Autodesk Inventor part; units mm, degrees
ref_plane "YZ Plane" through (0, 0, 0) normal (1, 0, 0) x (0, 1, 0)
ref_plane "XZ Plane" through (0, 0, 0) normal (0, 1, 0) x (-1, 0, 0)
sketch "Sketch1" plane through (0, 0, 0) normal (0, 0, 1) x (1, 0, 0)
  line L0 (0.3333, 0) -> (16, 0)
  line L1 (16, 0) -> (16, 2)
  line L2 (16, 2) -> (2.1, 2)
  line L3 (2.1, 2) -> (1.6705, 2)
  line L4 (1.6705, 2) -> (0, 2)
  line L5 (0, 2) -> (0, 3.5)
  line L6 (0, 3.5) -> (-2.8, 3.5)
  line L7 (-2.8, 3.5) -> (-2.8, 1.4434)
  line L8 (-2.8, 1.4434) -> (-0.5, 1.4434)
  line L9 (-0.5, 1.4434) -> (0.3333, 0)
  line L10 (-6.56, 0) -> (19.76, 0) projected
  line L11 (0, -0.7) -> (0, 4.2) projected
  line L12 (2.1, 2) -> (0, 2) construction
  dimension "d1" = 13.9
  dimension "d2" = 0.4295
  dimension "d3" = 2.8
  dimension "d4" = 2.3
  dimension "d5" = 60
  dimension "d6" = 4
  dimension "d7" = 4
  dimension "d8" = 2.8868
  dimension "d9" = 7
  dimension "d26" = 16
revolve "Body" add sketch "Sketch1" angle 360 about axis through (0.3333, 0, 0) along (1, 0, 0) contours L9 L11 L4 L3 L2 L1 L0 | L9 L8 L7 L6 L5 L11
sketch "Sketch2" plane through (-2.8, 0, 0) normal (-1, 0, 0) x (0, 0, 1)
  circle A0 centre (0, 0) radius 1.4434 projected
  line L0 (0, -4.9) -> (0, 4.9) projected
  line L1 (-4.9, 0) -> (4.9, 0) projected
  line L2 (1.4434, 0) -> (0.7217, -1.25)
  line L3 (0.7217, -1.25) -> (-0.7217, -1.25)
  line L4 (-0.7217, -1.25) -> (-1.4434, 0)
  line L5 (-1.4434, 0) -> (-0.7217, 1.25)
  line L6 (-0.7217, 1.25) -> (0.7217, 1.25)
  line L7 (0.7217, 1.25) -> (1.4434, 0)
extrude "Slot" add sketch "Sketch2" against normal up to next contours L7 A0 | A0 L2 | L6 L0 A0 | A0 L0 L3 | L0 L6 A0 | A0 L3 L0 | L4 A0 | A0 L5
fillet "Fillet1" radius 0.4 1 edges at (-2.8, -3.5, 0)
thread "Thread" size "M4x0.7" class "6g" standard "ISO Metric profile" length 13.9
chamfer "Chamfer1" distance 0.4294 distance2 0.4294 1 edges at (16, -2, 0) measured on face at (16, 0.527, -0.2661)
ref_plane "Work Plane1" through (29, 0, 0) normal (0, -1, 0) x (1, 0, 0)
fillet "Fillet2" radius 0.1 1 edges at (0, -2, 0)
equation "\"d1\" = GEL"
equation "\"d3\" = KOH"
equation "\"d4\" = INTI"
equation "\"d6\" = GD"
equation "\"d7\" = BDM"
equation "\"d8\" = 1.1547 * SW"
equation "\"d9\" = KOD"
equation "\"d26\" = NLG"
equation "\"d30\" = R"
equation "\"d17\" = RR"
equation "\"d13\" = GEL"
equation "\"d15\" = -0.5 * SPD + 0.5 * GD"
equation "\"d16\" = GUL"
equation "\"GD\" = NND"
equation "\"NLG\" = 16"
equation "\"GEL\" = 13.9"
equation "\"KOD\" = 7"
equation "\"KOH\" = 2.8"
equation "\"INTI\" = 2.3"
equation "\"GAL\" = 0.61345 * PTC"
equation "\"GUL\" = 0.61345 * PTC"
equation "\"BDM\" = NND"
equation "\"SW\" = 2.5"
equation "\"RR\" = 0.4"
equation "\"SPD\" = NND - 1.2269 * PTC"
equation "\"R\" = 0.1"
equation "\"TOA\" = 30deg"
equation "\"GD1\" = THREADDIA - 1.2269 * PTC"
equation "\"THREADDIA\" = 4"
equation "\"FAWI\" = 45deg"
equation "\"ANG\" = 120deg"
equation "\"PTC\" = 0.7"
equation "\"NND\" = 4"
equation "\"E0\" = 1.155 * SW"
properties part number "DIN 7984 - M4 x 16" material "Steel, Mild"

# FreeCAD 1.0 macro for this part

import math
import FreeCAD as App
import Part
import Sketcher
from FreeCAD import Vector
Q = App.Units.Quantity


def edges_at(feature, points):
    """Names of the edges that pass closest to the given points."""
    edges = feature.Shape.Edges
    near = lambda p: min(range(len(edges)), key=lambda i: edges[i].distToShape(Part.Vertex(*p))[0])
    return sorted({f"Edge{near(p) + 1}" for p in points})

doc = App.newDocument("Part")
body = doc.addObject("PartDesign::Body", "Body")

# Sketch on XY plane
sketch1 = body.newObject("Sketcher::SketchObject", "Sketch")
sketch1.AttachmentSupport = (doc.getObject("XY_Plane"), [""])
sketch1.MapMode = "FlatFace"
sketch1.addGeometry(Part.LineSegment(Vector(0.3, 0, 0), Vector(16, 0, 0)), False)
sketch1.addGeometry(Part.LineSegment(Vector(16, 0, 0), Vector(16, 2, 0)), False)
sketch1.addGeometry(Part.LineSegment(Vector(16, 2, 0), Vector(0, 2, 0)), False)
sketch1.addGeometry(Part.LineSegment(Vector(0, 2, 0), Vector(0, 3.5, 0)), False)
sketch1.addGeometry(Part.LineSegment(Vector(0, 3.5, 0), Vector(-2.8, 3.5, 0)), False)
sketch1.addGeometry(Part.LineSegment(Vector(-2.8, 3.5, 0), Vector(-2.8, 1.4, 0)), False)
sketch1.addGeometry(Part.LineSegment(Vector(-2.8, 1.4, 0), Vector(-0.5, 1.4, 0)), False)
sketch1.addGeometry(Part.LineSegment(Vector(-0.5, 1.4, 0), Vector(0.3, 0, 0)), False)
sketch1.addConstraint(Sketcher.Constraint("Coincident", 0, 2, 1, 1))
sketch1.addConstraint(Sketcher.Constraint("Coincident", 1, 2, 2, 1))
sketch1.addConstraint(Sketcher.Constraint("Coincident", 2, 2, 3, 1))
sketch1.addConstraint(Sketcher.Constraint("Coincident", 3, 2, 4, 1))
sketch1.addConstraint(Sketcher.Constraint("Coincident", 4, 2, 5, 1))
sketch1.addConstraint(Sketcher.Constraint("Coincident", 5, 2, 6, 1))
sketch1.addConstraint(Sketcher.Constraint("Coincident", 6, 2, 7, 1))
sketch1.addConstraint(Sketcher.Constraint("Coincident", 7, 2, 0, 1))
sketch1.addConstraint(Sketcher.Constraint("Horizontal", 0))
sketch1.addConstraint(Sketcher.Constraint("Vertical", 1))
sketch1.addConstraint(Sketcher.Constraint("Horizontal", 2))
sketch1.addConstraint(Sketcher.Constraint("Vertical", 3))
sketch1.addConstraint(Sketcher.Constraint("Horizontal", 4))
sketch1.addConstraint(Sketcher.Constraint("Vertical", 5))
sketch1.addConstraint(Sketcher.Constraint("Horizontal", 6))
sketch1.addConstraint(Sketcher.Constraint("PointOnObject", 0, 2, -1))
sketch1.addConstraint(Sketcher.Constraint("PointOnObject", 2, 2, -2))
sketch1.addConstraint(Sketcher.Constraint("DistanceX", 2, 2, 2, 1, 16.0))
sketch1.addConstraint(Sketcher.Constraint("DistanceX", 4, 2, 4, 1, 2.8))
sketch1.addConstraint(Sketcher.Constraint("DistanceX", 6, 1, 6, 2, 2.3))
sketch1.addConstraint(Sketcher.Constraint("DistanceY", 1, 1, 1, 2, 2.0))
sketch1.addConstraint(Sketcher.Constraint("DistanceY", 3, 1, 3, 2, 1.5))
sketch1.addConstraint(Sketcher.Constraint("DistanceX", 0, 1, 0, 2, 15.6667))
sketch1.addConstraint(Sketcher.Constraint("DistanceY", 5, 2, 5, 1, 2.0566))
revolution = body.newObject("PartDesign::Revolution", "Revolution")
revolution.Profile = sketch1
revolution.ReferenceAxis = (sketch1, ["H_Axis"])
revolution.Angle = 360

# Sketch on YZ plane
sketch2 = body.newObject("Sketcher::SketchObject", "Sketch001")
sketch2.AttachmentSupport = (doc.getObject("YZ_Plane"), [""])
sketch2.MapMode = "FlatFace"
sketch2.AttachmentOffset = App.Placement(Vector(0, 0, -2.8), App.Rotation())
sketch2.addGeometry(Part.LineSegment(Vector(1.2, 0.7, 0), Vector(0, 1.4, 0)), False)
sketch2.addGeometry(Part.ArcOfCircle(Part.Circle(Vector(0, 0, 0), Vector(0, 0, 1), 1.4), math.radians(30), math.radians(90)), False)
sketch2.addGeometry(Part.ArcOfCircle(Part.Circle(Vector(0, 0, 0), Vector(0, 0, 1), 1.4), math.radians(90), math.radians(150)), False)
sketch2.addGeometry(Part.LineSegment(Vector(0, 1.4, 0), Vector(-1.2, 0.7, 0)), False)
sketch2.addGeometry(Part.ArcOfCircle(Part.Circle(Vector(0, 0, 0), Vector(0, 0, 1), 1.4), math.radians(-30), math.radians(30)), False)
sketch2.addGeometry(Part.LineSegment(Vector(1.2, 0.7, 0), Vector(1.2, -0.7, 0)), False)
sketch2.addGeometry(Part.LineSegment(Vector(-1.2, 0.7, 0), Vector(-1.2, -0.7, 0)), False)
sketch2.addGeometry(Part.ArcOfCircle(Part.Circle(Vector(0, 0, 0), Vector(0, 0, 1), 1.4), math.radians(150), math.radians(210)), False)
sketch2.addGeometry(Part.LineSegment(Vector(-1.2, -0.7, 0), Vector(0, -1.4, 0)), False)
sketch2.addGeometry(Part.ArcOfCircle(Part.Circle(Vector(0, 0, 0), Vector(0, 0, 1), 1.4), math.radians(-150), math.radians(-90)), False)
sketch2.addGeometry(Part.ArcOfCircle(Part.Circle(Vector(0, 0, 0), Vector(0, 0, 1), 1.4), math.radians(-90), math.radians(-30)), False)
sketch2.addGeometry(Part.LineSegment(Vector(0, -1.4, 0), Vector(1.2, -0.7, 0)), False)
sketch2.addConstraint(Sketcher.Constraint("Coincident", 0, 1, 1, 1))
sketch2.addConstraint(Sketcher.Constraint("Coincident", 1, 2, 0, 2))
sketch2.addConstraint(Sketcher.Constraint("Coincident", 2, 1, 3, 1))
sketch2.addConstraint(Sketcher.Constraint("Coincident", 3, 2, 2, 2))
sketch2.addConstraint(Sketcher.Constraint("Coincident", 4, 1, 5, 2))
sketch2.addConstraint(Sketcher.Constraint("Coincident", 5, 1, 4, 2))
sketch2.addConstraint(Sketcher.Constraint("Coincident", 6, 1, 7, 1))
sketch2.addConstraint(Sketcher.Constraint("Coincident", 7, 2, 6, 2))
sketch2.addConstraint(Sketcher.Constraint("Coincident", 8, 1, 9, 1))
sketch2.addConstraint(Sketcher.Constraint("Coincident", 9, 2, 8, 2))
sketch2.addConstraint(Sketcher.Constraint("Coincident", 10, 1, 11, 1))
sketch2.addConstraint(Sketcher.Constraint("Coincident", 11, 2, 10, 2))
sketch2.addConstraint(Sketcher.Constraint("Vertical", 5))
sketch2.addConstraint(Sketcher.Constraint("Vertical", 6))
sketch2.addConstraint(Sketcher.Constraint("Coincident", 1, 3, -1, 1))
sketch2.addConstraint(Sketcher.Constraint("Coincident", 2, 3, -1, 1))
sketch2.addConstraint(Sketcher.Constraint("Coincident", 4, 3, -1, 1))
sketch2.addConstraint(Sketcher.Constraint("Coincident", 7, 3, -1, 1))
sketch2.addConstraint(Sketcher.Constraint("Coincident", 9, 3, -1, 1))
sketch2.addConstraint(Sketcher.Constraint("Coincident", 10, 3, -1, 1))
sketch2.addConstraint(Sketcher.Constraint("Coincident", 2, 1, 1, 2))
sketch2.addConstraint(Sketcher.Constraint("Coincident", 5, 1, 0, 1))
sketch2.addConstraint(Sketcher.Constraint("Coincident", 6, 1, 3, 2))
sketch2.addConstraint(Sketcher.Constraint("Coincident", 8, 1, 7, 2))
sketch2.addConstraint(Sketcher.Constraint("Coincident", 10, 1, 9, 2))
sketch2.addConstraint(Sketcher.Constraint("PointOnObject", 1, 2, -2))
sketch2.addConstraint(Sketcher.Constraint("PointOnObject", 9, 2, -2))
sketch2.addConstraint(Sketcher.Constraint("Parallel", 0, 8))
sketch2.addConstraint(Sketcher.Constraint("Parallel", 3, 11))
sketch2.addConstraint(Sketcher.Constraint("Angle", 0, Q("149.9996 deg")))
sketch2.addConstraint(Sketcher.Constraint("Radius", 1, 1.4434))
pad1 = body.newObject("PartDesign::Pad", "Pad")
pad1.Profile = sketch2
pad1.Type = "UpToFirst"
doc.recompute()

fillet = body.newObject("PartDesign::Fillet", "Fillet")
fillet.Base = (pad1, edges_at(pad1, [(-2.8, -3.5, 0)]))
fillet.Radius = 0.4
doc.recompute()

chamfer = body.newObject("PartDesign::Chamfer", "Chamfer")
chamfer.Base = (fillet, edges_at(fillet, [(16, -2, 0)]))
chamfer.ChamferType = "Two distances"
chamfer.Size = 0.4294
chamfer.Size2 = 0.4294
doc.recompute()

fillet2 = body.newObject("PartDesign::Fillet", "Fillet001")
fillet2.Base = (chamfer, edges_at(chamfer, [(0, -2, 0)]))
fillet2.Radius = 0.1

doc.recompute()
